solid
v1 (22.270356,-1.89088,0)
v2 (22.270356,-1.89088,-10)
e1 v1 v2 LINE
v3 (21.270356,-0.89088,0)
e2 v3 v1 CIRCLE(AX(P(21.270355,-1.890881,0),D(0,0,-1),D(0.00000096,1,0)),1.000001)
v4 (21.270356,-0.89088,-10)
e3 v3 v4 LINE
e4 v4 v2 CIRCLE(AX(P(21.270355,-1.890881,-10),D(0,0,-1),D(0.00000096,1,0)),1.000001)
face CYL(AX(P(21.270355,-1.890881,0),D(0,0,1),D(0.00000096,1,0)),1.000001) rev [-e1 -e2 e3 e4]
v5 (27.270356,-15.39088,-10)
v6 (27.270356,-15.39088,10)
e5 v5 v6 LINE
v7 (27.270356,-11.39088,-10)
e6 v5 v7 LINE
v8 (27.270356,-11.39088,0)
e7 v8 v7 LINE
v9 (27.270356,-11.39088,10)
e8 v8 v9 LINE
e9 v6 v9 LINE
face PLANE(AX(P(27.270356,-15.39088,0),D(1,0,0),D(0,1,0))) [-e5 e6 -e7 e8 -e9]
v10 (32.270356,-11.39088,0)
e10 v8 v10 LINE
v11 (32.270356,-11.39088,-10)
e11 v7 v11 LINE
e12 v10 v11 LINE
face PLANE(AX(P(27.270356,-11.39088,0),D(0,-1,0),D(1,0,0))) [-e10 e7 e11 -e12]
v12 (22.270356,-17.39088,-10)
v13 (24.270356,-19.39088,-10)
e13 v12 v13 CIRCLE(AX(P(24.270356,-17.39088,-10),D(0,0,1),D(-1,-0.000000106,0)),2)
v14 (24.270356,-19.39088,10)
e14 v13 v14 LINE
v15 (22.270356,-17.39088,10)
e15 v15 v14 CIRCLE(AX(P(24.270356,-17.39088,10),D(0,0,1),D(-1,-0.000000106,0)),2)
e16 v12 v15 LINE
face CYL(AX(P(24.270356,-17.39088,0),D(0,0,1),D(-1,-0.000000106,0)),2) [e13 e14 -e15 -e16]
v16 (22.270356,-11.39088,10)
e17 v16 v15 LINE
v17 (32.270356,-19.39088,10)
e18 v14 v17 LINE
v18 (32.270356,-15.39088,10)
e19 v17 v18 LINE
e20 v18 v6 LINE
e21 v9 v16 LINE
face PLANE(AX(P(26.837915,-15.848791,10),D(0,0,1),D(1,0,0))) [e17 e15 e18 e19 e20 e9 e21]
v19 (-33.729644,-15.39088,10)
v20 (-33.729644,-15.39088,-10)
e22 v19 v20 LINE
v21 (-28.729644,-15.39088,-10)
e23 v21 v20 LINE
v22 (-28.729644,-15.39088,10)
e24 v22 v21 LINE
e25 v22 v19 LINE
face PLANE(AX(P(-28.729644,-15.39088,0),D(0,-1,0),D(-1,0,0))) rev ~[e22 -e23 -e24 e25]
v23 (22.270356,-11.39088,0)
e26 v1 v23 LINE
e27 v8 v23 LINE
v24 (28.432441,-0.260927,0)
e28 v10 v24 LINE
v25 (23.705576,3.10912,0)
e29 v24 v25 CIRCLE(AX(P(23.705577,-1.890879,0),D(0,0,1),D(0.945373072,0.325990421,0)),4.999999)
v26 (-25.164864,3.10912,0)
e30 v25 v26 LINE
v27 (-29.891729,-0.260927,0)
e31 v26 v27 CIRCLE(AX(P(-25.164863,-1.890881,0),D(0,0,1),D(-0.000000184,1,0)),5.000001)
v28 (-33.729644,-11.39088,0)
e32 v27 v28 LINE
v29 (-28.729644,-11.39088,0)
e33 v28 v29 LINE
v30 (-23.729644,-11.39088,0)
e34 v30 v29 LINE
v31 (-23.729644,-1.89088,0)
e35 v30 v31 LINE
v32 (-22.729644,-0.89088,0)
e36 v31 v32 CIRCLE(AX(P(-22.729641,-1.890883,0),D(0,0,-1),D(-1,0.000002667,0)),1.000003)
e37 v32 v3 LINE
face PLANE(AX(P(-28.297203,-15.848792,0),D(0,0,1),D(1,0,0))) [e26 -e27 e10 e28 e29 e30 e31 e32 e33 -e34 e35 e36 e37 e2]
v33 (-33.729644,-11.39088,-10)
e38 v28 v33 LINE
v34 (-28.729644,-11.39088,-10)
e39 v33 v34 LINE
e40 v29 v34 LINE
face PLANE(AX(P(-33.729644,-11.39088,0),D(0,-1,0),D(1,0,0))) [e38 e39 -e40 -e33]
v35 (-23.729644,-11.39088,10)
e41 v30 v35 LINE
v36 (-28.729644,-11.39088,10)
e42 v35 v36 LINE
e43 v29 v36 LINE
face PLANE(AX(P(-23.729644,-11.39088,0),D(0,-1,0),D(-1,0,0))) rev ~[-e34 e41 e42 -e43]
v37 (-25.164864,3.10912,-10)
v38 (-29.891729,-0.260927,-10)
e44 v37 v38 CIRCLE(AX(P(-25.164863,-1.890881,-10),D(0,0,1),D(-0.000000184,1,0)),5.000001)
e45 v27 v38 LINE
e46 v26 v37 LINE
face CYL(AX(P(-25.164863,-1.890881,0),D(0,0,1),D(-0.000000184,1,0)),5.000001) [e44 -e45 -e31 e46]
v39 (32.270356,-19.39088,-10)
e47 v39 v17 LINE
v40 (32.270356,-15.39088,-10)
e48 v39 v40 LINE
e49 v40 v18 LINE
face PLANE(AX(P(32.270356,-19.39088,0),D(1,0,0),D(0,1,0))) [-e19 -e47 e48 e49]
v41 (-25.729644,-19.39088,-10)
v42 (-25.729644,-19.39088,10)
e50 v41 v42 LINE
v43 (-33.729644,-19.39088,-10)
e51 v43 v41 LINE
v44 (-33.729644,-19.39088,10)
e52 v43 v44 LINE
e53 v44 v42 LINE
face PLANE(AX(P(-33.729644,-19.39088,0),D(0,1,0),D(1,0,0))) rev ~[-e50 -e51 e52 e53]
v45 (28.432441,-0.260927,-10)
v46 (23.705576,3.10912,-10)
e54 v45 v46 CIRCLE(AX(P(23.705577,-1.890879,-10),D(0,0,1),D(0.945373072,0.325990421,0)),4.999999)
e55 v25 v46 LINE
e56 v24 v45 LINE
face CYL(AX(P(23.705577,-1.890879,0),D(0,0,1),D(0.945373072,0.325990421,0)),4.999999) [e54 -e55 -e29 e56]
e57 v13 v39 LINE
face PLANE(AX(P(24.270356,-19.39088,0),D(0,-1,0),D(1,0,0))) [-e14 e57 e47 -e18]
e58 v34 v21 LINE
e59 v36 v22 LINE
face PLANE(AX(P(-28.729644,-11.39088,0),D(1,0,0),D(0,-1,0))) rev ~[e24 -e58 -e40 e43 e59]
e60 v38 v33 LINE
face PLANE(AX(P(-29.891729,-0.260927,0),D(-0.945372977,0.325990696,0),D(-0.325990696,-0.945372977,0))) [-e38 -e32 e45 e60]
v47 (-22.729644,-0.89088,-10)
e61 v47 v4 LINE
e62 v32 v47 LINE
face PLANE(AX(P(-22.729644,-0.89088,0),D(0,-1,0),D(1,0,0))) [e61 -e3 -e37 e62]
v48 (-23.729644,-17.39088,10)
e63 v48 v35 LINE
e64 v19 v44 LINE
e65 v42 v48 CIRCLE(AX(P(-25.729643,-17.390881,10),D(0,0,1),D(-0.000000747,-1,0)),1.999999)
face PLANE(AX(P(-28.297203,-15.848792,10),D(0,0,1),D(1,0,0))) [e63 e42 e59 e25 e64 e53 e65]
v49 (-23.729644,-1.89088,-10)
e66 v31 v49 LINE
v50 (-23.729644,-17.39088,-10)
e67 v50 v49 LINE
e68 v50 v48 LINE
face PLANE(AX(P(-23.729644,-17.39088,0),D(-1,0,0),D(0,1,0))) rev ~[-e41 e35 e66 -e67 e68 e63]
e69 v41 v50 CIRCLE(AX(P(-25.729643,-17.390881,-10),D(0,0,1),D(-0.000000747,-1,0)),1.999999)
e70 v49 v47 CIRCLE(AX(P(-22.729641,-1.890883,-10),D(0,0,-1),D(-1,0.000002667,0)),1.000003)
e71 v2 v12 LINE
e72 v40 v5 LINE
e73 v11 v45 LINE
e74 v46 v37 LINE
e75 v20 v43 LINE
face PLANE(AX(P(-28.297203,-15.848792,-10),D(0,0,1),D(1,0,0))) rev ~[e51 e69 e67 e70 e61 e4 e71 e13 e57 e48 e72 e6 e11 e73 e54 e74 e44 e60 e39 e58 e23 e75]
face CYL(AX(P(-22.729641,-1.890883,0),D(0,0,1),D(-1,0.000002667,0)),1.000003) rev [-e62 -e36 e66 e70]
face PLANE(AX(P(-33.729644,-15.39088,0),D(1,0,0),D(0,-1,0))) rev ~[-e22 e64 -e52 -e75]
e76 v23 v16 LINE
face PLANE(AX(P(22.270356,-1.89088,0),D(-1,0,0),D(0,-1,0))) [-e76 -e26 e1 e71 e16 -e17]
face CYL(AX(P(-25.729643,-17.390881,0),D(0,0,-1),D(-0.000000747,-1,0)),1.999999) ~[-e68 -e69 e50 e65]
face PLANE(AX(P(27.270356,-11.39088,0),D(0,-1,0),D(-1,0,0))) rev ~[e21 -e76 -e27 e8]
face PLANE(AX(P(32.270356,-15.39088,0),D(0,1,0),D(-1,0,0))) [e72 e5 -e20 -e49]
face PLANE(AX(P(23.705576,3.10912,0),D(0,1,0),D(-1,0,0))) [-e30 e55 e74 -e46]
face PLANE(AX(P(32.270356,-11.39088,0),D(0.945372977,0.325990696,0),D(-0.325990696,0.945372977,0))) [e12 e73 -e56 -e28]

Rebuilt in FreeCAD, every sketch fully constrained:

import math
import FreeCAD as App
import Part
import Sketcher
from FreeCAD import Vector

doc = App.newDocument("Part")
params = doc.addObject("Spreadsheet::Sheet", "Params")
for row, (alias, value) in enumerate([
    ("sketch1_radius", "1.999999 mm"),
    ("sketch1_radius2", "1.000001 mm"),
    ("sketch1_radius3", "4.999999 mm"),
    ("sketch1_width", "8 mm"),
    ("sketch1_width2", "44 mm"),
    ("pad1_length", "10 mm"),
    ("sketch2_radius", "1.999999 mm"),
    ("sketch2_width", "8 mm"),
    ("sketch2_height", "4 mm"),
    ("pad2_length", "10 mm"),
], start=1):
    params.set(f"A{row}", alias)
    params.set(f"B{row}", "=" + value)
    params.setAlias(f"B{row}", alias)

body = doc.addObject("PartDesign::Body", "Body")

sketch1 = body.newObject("Sketcher::SketchObject", "Sketch")
sketch1.AttachmentSupport = (doc.getObject("XY_Plane"), [""])
sketch1.MapMode = "FlatFace"
sketch1.addGeometry(Part.LineSegment(Vector(-33.729644, -15.39088, 0), Vector(-33.729644, -19.39088, 0)), False)
sketch1.addGeometry(Part.LineSegment(Vector(-33.729644, -19.39088, 0), Vector(-25.729644, -19.39088, 0)), False)
sketch1.addGeometry(Part.ArcOfCircle(Part.Circle(Vector(-25.729643, -17.390881, 0), Vector(0, 0, 1), 1.999999), math.radians(-90.000043), math.radians(0.000043)), False)
sketch1.addGeometry(Part.LineSegment(Vector(-23.729644, -17.39088, 0), Vector(-23.729644, -1.89088, 0)), False)
sketch1.addGeometry(Part.ArcOfCircle(Part.Circle(Vector(-22.729641, -1.890883, 0), Vector(0, 0, 1), 1.000003), math.radians(90.000153), math.radians(179.999847)), False)
sketch1.addGeometry(Part.LineSegment(Vector(-22.729644, -0.89088, 0), Vector(21.270356, -0.89088, 0)), False)
sketch1.addGeometry(Part.ArcOfCircle(Part.Circle(Vector(21.270355, -1.890881, 0), Vector(0, 0, 1), 1.000001), math.radians(0.000055), math.radians(89.999945)), False)
sketch1.addGeometry(Part.LineSegment(Vector(22.270356, -1.89088, 0), Vector(22.270356, -17.39088, 0)), False)
sketch1.addGeometry(Part.ArcOfCircle(Part.Circle(Vector(24.270356, -17.39088, 0), Vector(0, 0, 1), 2), math.radians(-179.999994), math.radians(-90.000006)), False)
sketch1.addGeometry(Part.LineSegment(Vector(24.270356, -19.39088, 0), Vector(32.270356, -19.39088, 0)), False)
sketch1.addGeometry(Part.LineSegment(Vector(32.270356, -19.39088, 0), Vector(32.270356, -15.39088, 0)), False)
sketch1.addGeometry(Part.LineSegment(Vector(32.270356, -15.39088, 0), Vector(27.270356, -15.39088, 0)), False)
sketch1.addGeometry(Part.LineSegment(Vector(27.270356, -15.39088, 0), Vector(27.270356, -11.39088, 0)), False)
sketch1.addGeometry(Part.LineSegment(Vector(27.270356, -11.39088, 0), Vector(32.270356, -11.39088, 0)), False)
sketch1.addGeometry(Part.LineSegment(Vector(32.270356, -11.39088, 0), Vector(28.432441, -0.260927, 0)), False)
sketch1.addGeometry(Part.ArcOfCircle(Part.Circle(Vector(23.705577, -1.890879, 0), Vector(0, 0, 1), 4.999999), math.radians(19.02559), math.radians(90.00001)), False)
sketch1.addGeometry(Part.LineSegment(Vector(23.705576, 3.10912, 0), Vector(-25.164864, 3.10912, 0)), False)
sketch1.addGeometry(Part.ArcOfCircle(Part.Circle(Vector(-25.164863, -1.890881, 0), Vector(0, 0, 1), 5.000001), math.radians(90.000011), math.radians(160.974389)), False)
sketch1.addGeometry(Part.LineSegment(Vector(-29.891729, -0.260927, 0), Vector(-33.729644, -11.39088, 0)), False)
sketch1.addGeometry(Part.LineSegment(Vector(-33.729644, -11.39088, 0), Vector(-28.729644, -11.39088, 0)), False)
sketch1.addGeometry(Part.LineSegment(Vector(-28.729644, -11.39088, 0), Vector(-28.729644, -15.39088, 0)), False)
sketch1.addGeometry(Part.LineSegment(Vector(-28.729644, -15.39088, 0), Vector(-33.729644, -15.39088, 0)), False)
sketch1.addConstraint(Sketcher.Constraint("Coincident", 0, 2, 1, 1))
sketch1.addConstraint(Sketcher.Constraint("Tangent", 1, 2, 2, 1))
sketch1.addConstraint(Sketcher.Constraint("Tangent", 2, 2, 3, 1))
sketch1.addConstraint(Sketcher.Constraint("Coincident", 3, 2, 4, 2))
sketch1.addConstraint(Sketcher.Constraint("Coincident", 4, 1, 5, 1))
sketch1.addConstraint(Sketcher.Constraint("Tangent", 5, 2, 6, 2))
sketch1.addConstraint(Sketcher.Constraint("Tangent", 6, 1, 7, 1))
sketch1.addConstraint(Sketcher.Constraint("Tangent", 7, 2, 8, 1))
sketch1.addConstraint(Sketcher.Constraint("Tangent", 8, 2, 9, 1))
sketch1.addConstraint(Sketcher.Constraint("Coincident", 9, 2, 10, 1))
sketch1.addConstraint(Sketcher.Constraint("Coincident", 10, 2, 11, 1))
sketch1.addConstraint(Sketcher.Constraint("Coincident", 11, 2, 12, 1))
sketch1.addConstraint(Sketcher.Constraint("Coincident", 12, 2, 13, 1))
sketch1.addConstraint(Sketcher.Constraint("Coincident", 13, 2, 14, 1))
sketch1.addConstraint(Sketcher.Constraint("Tangent", 14, 2, 15, 1))
sketch1.addConstraint(Sketcher.Constraint("Tangent", 15, 2, 16, 1))
sketch1.addConstraint(Sketcher.Constraint("Tangent", 16, 2, 17, 1))
sketch1.addConstraint(Sketcher.Constraint("Tangent", 17, 2, 18, 1))
sketch1.addConstraint(Sketcher.Constraint("Coincident", 18, 2, 19, 1))
sketch1.addConstraint(Sketcher.Constraint("Coincident", 19, 2, 20, 1))
sketch1.addConstraint(Sketcher.Constraint("Coincident", 20, 2, 21, 1))
sketch1.addConstraint(Sketcher.Constraint("Coincident", 21, 2, 0, 1))
sketch1.addConstraint(Sketcher.Constraint("Vertical", 0))
sketch1.addConstraint(Sketcher.Constraint("Horizontal", 1))
sketch1.addConstraint(Sketcher.Constraint("Vertical", 3))
sketch1.addConstraint(Sketcher.Constraint("Horizontal", 5))
sketch1.addConstraint(Sketcher.Constraint("Vertical", 7))
sketch1.addConstraint(Sketcher.Constraint("Horizontal", 9))
sketch1.addConstraint(Sketcher.Constraint("Vertical", 10))
sketch1.addConstraint(Sketcher.Constraint("Horizontal", 11))
sketch1.addConstraint(Sketcher.Constraint("Vertical", 12))
sketch1.addConstraint(Sketcher.Constraint("Horizontal", 13))
sketch1.addConstraint(Sketcher.Constraint("Horizontal", 16))
sketch1.addConstraint(Sketcher.Constraint("Horizontal", 19))
sketch1.addConstraint(Sketcher.Constraint("Vertical", 20))
sketch1.addConstraint(Sketcher.Constraint("Horizontal", 21))
sketch1.addConstraint(Sketcher.Constraint("Equal", 4, 6))
sketch1.addConstraint(Sketcher.Constraint("Equal", 2, 8))
sketch1.addConstraint(Sketcher.Constraint("Horizontal", 2, 3, 8, 3))
sketch1.addConstraint(Sketcher.Constraint("Horizontal", 6, 3, 17, 3))
sketch1.addConstraint(Sketcher.Constraint("Horizontal", 17, 3, 3, 2))
sketch1.addConstraint(Sketcher.Constraint("Horizontal", 14, 2, 17, 2))
sketch1.addConstraint(Sketcher.Constraint("Horizontal", 13, 2, 18, 2))
sketch1.addConstraint(Sketcher.Constraint("Horizontal", 11, 2, 20, 2))
sketch1.addConstraint(Sketcher.Constraint("Vertical", 10, 2, 13, 2))
sketch1.addConstraint(Sketcher.Constraint("Vertical", 0, 2, 18, 2))
sketch1.addConstraint(Sketcher.Constraint("Equal", 1, 9))
sketch1.addConstraint(Sketcher.Constraint("Equal", 13, 19))
sketch1.addConstraint(Sketcher.Constraint("Equal", 10, 12))
sketch1.addConstraint(Sketcher.Constraint("Equal", 14, 18))
sketch1.addConstraint(Sketcher.Constraint("Radius", 2, 1.999999))
sketch1.addConstraint(Sketcher.Constraint("Radius", 6, 1.000001))
sketch1.addConstraint(Sketcher.Constraint("Radius", 15, 4.999999))
sketch1.addConstraint(Sketcher.Constraint("DistanceX", 1, 1, 1, 2, 8.0))
sketch1.addConstraint(Sketcher.Constraint("DistanceX", 5, 1, 5, 2, 44.0))
sketch1.addConstraint(Sketcher.Constraint("DistanceX", 11, 2, 11, 1, 5.0))
sketch1.addConstraint(Sketcher.Constraint("DistanceY", 0, 2, 0, 1, 4.0))
sketch1.addConstraint(Sketcher.Constraint("DistanceY", 3, 1, 3, 2, 15.5))
sketch1.addConstraint(Sketcher.Constraint("DistanceX", 2, 3, 8, 3, 49.999999))
sketch1.addConstraint(Sketcher.Constraint("DistanceX", 16, 2, 16, 1, 48.87044))
sketch1.addConstraint(Sketcher.Constraint("DistanceY", 2, 3, -1, 1, 17.390881))
sketch1.addConstraint(Sketcher.Constraint("DistanceX", 4, 3, -1, 1, 22.729641))
sketch1.setExpression("Constraints[50]", "Params.sketch1_radius")
sketch1.setExpression("Constraints[51]", "Params.sketch1_radius2")
sketch1.setExpression("Constraints[52]", "Params.sketch1_radius3")
sketch1.setExpression("Constraints[53]", "Params.sketch1_width")
sketch1.setExpression("Constraints[54]", "Params.sketch1_width2")
pad1 = body.newObject("PartDesign::Pad", "Pad")
pad1.Profile = sketch1
pad1.setExpression("Length", "Params.pad1_length")
pad1.Reversed = True

sketch2 = body.newObject("Sketcher::SketchObject", "Sketch001")
sketch2.AttachmentSupport = (doc.getObject("XY_Plane"), [""])
sketch2.MapMode = "FlatFace"
sketch2.addGeometry(Part.LineSegment(Vector(-33.729644, -15.39088, 0), Vector(-33.729644, -19.39088, 0)), False)
sketch2.addGeometry(Part.LineSegment(Vector(-33.729644, -19.39088, 0), Vector(-25.729644, -19.39088, 0)), False)
sketch2.addGeometry(Part.ArcOfCircle(Part.Circle(Vector(-25.729643, -17.390881, 0), Vector(0, 0, 1), 1.999999), math.radians(-90.000043), math.radians(0.000043)), False)
sketch2.addGeometry(Part.LineSegment(Vector(-23.729644, -17.39088, 0), Vector(-23.729644, -11.39088, 0)), False)
sketch2.addGeometry(Part.LineSegment(Vector(-23.729644, -11.39088, 0), Vector(-28.729644, -11.39088, 0)), False)
sketch2.addGeometry(Part.LineSegment(Vector(-28.729644, -11.39088, 0), Vector(-28.729644, -15.39088, 0)), False)
sketch2.addGeometry(Part.LineSegment(Vector(-28.729644, -15.39088, 0), Vector(-33.729644, -15.39088, 0)), False)
sketch2.addGeometry(Part.LineSegment(Vector(27.270356, -11.39088, 0), Vector(22.270356, -11.39088, 0)), False)
sketch2.addGeometry(Part.LineSegment(Vector(22.270356, -11.39088, 0), Vector(22.270356, -17.39088, 0)), False)
sketch2.addGeometry(Part.ArcOfCircle(Part.Circle(Vector(24.270356, -17.39088, 0), Vector(0, 0, 1), 2), math.radians(-179.999994), math.radians(-90.000006)), False)
sketch2.addGeometry(Part.LineSegment(Vector(24.270356, -19.39088, 0), Vector(32.270356, -19.39088, 0)), False)
sketch2.addGeometry(Part.LineSegment(Vector(32.270356, -19.39088, 0), Vector(32.270356, -15.39088, 0)), False)
sketch2.addGeometry(Part.LineSegment(Vector(32.270356, -15.39088, 0), Vector(27.270356, -15.39088, 0)), False)
sketch2.addGeometry(Part.LineSegment(Vector(27.270356, -15.39088, 0), Vector(27.270356, -11.39088, 0)), False)
sketch2.addConstraint(Sketcher.Constraint("Coincident", 0, 2, 1, 1))
sketch2.addConstraint(Sketcher.Constraint("Tangent", 1, 2, 2, 1))
sketch2.addConstraint(Sketcher.Constraint("Tangent", 2, 2, 3, 1))
sketch2.addConstraint(Sketcher.Constraint("Coincident", 3, 2, 4, 1))
sketch2.addConstraint(Sketcher.Constraint("Coincident", 4, 2, 5, 1))
sketch2.addConstraint(Sketcher.Constraint("Coincident", 5, 2, 6, 1))
sketch2.addConstraint(Sketcher.Constraint("Coincident", 6, 2, 0, 1))
sketch2.addConstraint(Sketcher.Constraint("Coincident", 7, 2, 8, 1))
sketch2.addConstraint(Sketcher.Constraint("Tangent", 8, 2, 9, 1))
sketch2.addConstraint(Sketcher.Constraint("Tangent", 9, 2, 10, 1))
sketch2.addConstraint(Sketcher.Constraint("Coincident", 10, 2, 11, 1))
sketch2.addConstraint(Sketcher.Constraint("Coincident", 11, 2, 12, 1))
sketch2.addConstraint(Sketcher.Constraint("Coincident", 12, 2, 13, 1))
sketch2.addConstraint(Sketcher.Constraint("Coincident", 13, 2, 7, 1))
sketch2.addConstraint(Sketcher.Constraint("Vertical", 0))
sketch2.addConstraint(Sketcher.Constraint("Horizontal", 1))
sketch2.addConstraint(Sketcher.Constraint("Vertical", 3))
sketch2.addConstraint(Sketcher.Constraint("Horizontal", 4))
sketch2.addConstraint(Sketcher.Constraint("Vertical", 5))
sketch2.addConstraint(Sketcher.Constraint("Horizontal", 6))
sketch2.addConstraint(Sketcher.Constraint("Horizontal", 7))
sketch2.addConstraint(Sketcher.Constraint("Vertical", 8))
sketch2.addConstraint(Sketcher.Constraint("Horizontal", 10))
sketch2.addConstraint(Sketcher.Constraint("Vertical", 11))
sketch2.addConstraint(Sketcher.Constraint("Horizontal", 12))
sketch2.addConstraint(Sketcher.Constraint("Vertical", 13))
sketch2.addConstraint(Sketcher.Constraint("Equal", 2, 9))
sketch2.addConstraint(Sketcher.Constraint("Horizontal", 2, 3, 9, 3))
sketch2.addConstraint(Sketcher.Constraint("Horizontal", 4, 2, 7, 2))
sketch2.addConstraint(Sketcher.Constraint("Horizontal", 6, 2, 11, 2))
sketch2.addConstraint(Sketcher.Constraint("Equal", 4, 6))
sketch2.addConstraint(Sketcher.Constraint("Equal", 6, 7))
sketch2.addConstraint(Sketcher.Constraint("Equal", 1, 10))
sketch2.addConstraint(Sketcher.Constraint("Equal", 0, 5))
sketch2.addConstraint(Sketcher.Constraint("Radius", 2, 1.999999))
sketch2.addConstraint(Sketcher.Constraint("DistanceX", 1, 1, 1, 2, 8.0))
sketch2.addConstraint(Sketcher.Constraint("DistanceY", 0, 2, 0, 1, 4.0))
sketch2.addConstraint(Sketcher.Constraint("DistanceX", 2, 3, 9, 3, 49.999999))
sketch2.addConstraint(Sketcher.Constraint("DistanceY", 2, 3, -1, 1, 17.390881))
sketch2.addConstraint(Sketcher.Constraint("DistanceX", 2, 3, -1, 1, 25.729643))
sketch2.setExpression("Constraints[34]", "Params.sketch2_radius")
sketch2.setExpression("Constraints[35]", "Params.sketch2_width")
sketch2.setExpression("Constraints[36]", "Params.sketch2_height")
pad2 = body.newObject("PartDesign::Pad", "Pad001")
pad2.Profile = sketch2
pad2.setExpression("Length", "Params.pad2_length")

doc.recompute()
